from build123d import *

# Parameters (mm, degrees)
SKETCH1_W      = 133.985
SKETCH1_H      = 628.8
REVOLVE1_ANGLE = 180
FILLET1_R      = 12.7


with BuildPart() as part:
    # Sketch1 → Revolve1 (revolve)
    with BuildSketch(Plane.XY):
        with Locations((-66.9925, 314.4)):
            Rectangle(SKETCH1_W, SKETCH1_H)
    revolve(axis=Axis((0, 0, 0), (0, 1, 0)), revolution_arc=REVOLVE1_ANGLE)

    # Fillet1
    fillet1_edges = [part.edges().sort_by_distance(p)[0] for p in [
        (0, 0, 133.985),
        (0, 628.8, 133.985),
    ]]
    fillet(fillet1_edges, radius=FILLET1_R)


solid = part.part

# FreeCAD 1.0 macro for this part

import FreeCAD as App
import Part
import Sketcher
from FreeCAD import Vector
Q = App.Units.Quantity


def edges_at(feature, points):
    """Names of the edges that pass closest to the given points."""
    edges = feature.Shape.Edges
    near = lambda p: min(range(len(edges)), key=lambda i: edges[i].distToShape(Part.Vertex(*p))[0])
    return sorted({f"Edge{near(p) + 1}" for p in points})

doc = App.newDocument("Part")
body = doc.addObject("PartDesign::Body", "Body")

# Sketch on XY plane
sketch1 = body.newObject("Sketcher::SketchObject", "Sketch")
sketch1.AttachmentSupport = (doc.getObject("XY_Plane"), [""])
sketch1.MapMode = "FlatFace"
sketch1.addGeometry(Part.LineSegment(Vector(-133.985, 628.8, 0), Vector(-133.985, 0, 0)), False)
sketch1.addGeometry(Part.LineSegment(Vector(-133.985, 0, 0), Vector(0, 0, 0)), False)
sketch1.addGeometry(Part.LineSegment(Vector(0, 0, 0), Vector(0, 628.8, 0)), False)
sketch1.addGeometry(Part.LineSegment(Vector(0, 628.8, 0), Vector(-133.985, 628.8, 0)), False)
sketch1.addConstraint(Sketcher.Constraint("Coincident", 0, 2, 1, 1))
sketch1.addConstraint(Sketcher.Constraint("Coincident", 1, 2, 2, 1))
sketch1.addConstraint(Sketcher.Constraint("Coincident", 2, 2, 3, 1))
sketch1.addConstraint(Sketcher.Constraint("Coincident", 3, 2, 0, 1))
sketch1.addConstraint(Sketcher.Constraint("Vertical", 0))
sketch1.addConstraint(Sketcher.Constraint("Horizontal", 1))
sketch1.addConstraint(Sketcher.Constraint("Vertical", 2))
sketch1.addConstraint(Sketcher.Constraint("Horizontal", 3))
sketch1.addConstraint(Sketcher.Constraint("Coincident", 1, 2, -1, 1))
sketch1.addConstraint(Sketcher.Constraint("DistanceX", 1, 1, 1, 2, Q("5.275 in")))
sketch1.addConstraint(Sketcher.Constraint("DistanceY", 0, 2, 0, 1, 628.8))
revolution = body.newObject("PartDesign::Revolution", "Revolution")
revolution.Profile = sketch1
revolution.ReferenceAxis = (sketch1, ["V_Axis"])
revolution.Angle = 180
doc.recompute()

fillet = body.newObject("PartDesign::Fillet", "Fillet")
fillet.Base = (revolution, edges_at(revolution, [(0, 0, 133.985), (0, 628.8, 133.985)]))
fillet.Radius = Q("0.5 in")

doc.recompute()
